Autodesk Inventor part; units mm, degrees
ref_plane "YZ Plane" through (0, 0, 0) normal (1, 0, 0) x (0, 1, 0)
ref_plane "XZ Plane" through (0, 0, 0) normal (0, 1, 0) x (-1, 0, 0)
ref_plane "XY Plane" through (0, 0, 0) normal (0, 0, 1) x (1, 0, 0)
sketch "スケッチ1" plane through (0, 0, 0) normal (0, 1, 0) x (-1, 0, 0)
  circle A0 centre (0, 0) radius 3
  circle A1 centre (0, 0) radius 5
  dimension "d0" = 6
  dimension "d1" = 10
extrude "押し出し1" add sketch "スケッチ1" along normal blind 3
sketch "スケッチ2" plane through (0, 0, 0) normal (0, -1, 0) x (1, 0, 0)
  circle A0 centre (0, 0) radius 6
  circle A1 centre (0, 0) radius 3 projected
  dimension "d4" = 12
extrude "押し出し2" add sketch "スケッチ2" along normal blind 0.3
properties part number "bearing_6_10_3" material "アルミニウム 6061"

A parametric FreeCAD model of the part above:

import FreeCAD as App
import Part
import Sketcher

doc = App.newDocument("Part")
params = doc.addObject("Spreadsheet::Sheet", "Params")
for row, (alias, value) in enumerate([
    ("sketch1_diameter", "10 mm"),
    ("sketch1_diameter2", "6 mm"),
    ("pad1_length", "3 mm"),
    ("sketch2_diameter", "12 mm"),
    ("sketch2_diameter2", "6 mm"),
    ("pad2_length", "0.3 mm"),
], start=1):
    params.set(f"A{row}", alias)
    params.set(f"B{row}", "=" + value)
    params.setAlias(f"B{row}", alias)

body = doc.addObject("PartDesign::Body", "Body")

sketch1 = body.newObject("Sketcher::SketchObject", "Sketch")
sketch1.AttachmentSupport = (doc.getObject("XZ_Plane"), [""])
sketch1.MapMode = "FlatFace"
sketch1.addGeometry(Part.Circle(App.Vector(0, 0, 0), App.Vector(0, 0, 1), 5), False)
sketch1.addGeometry(Part.Circle(App.Vector(0, 0, 0), App.Vector(0, 0, 1), 3), False)
sketch1.addConstraint(Sketcher.Constraint("Coincident", 0, 3, -1, 1))
sketch1.addConstraint(Sketcher.Constraint("Coincident", 1, 3, -1, 1))
sketch1.addConstraint(Sketcher.Constraint("Diameter", 0, 10.0))
sketch1.addConstraint(Sketcher.Constraint("Diameter", 1, 6.0))
sketch1.setExpression("Constraints[2]", "Params.sketch1_diameter")
sketch1.setExpression("Constraints[3]", "Params.sketch1_diameter2")
pad1 = body.newObject("PartDesign::Pad", "Pad")
pad1.Profile = sketch1
pad1.setExpression("Length", "Params.pad1_length")
pad1.Reversed = True

sketch2 = body.newObject("Sketcher::SketchObject", "Sketch001")
sketch2.AttachmentSupport = (doc.getObject("XZ_Plane"), [""])
sketch2.MapMode = "FlatFace"
sketch2.addGeometry(Part.Circle(App.Vector(0, 0, 0), App.Vector(0, 0, 1), 6), False)
sketch2.addGeometry(Part.Circle(App.Vector(0, 0, 0), App.Vector(0, 0, 1), 3), False)
sketch2.addConstraint(Sketcher.Constraint("Coincident", 0, 3, -1, 1))
sketch2.addConstraint(Sketcher.Constraint("Coincident", 1, 3, -1, 1))
sketch2.addConstraint(Sketcher.Constraint("Diameter", 0, 12.0))
sketch2.addConstraint(Sketcher.Constraint("Diameter", 1, 6.0))
sketch2.setExpression("Constraints[2]", "Params.sketch2_diameter")
sketch2.setExpression("Constraints[3]", "Params.sketch2_diameter2")
pad2 = body.newObject("PartDesign::Pad", "Pad001")
pad2.Profile = sketch2
pad2.setExpression("Length", "Params.pad2_length")

doc.recompute()
